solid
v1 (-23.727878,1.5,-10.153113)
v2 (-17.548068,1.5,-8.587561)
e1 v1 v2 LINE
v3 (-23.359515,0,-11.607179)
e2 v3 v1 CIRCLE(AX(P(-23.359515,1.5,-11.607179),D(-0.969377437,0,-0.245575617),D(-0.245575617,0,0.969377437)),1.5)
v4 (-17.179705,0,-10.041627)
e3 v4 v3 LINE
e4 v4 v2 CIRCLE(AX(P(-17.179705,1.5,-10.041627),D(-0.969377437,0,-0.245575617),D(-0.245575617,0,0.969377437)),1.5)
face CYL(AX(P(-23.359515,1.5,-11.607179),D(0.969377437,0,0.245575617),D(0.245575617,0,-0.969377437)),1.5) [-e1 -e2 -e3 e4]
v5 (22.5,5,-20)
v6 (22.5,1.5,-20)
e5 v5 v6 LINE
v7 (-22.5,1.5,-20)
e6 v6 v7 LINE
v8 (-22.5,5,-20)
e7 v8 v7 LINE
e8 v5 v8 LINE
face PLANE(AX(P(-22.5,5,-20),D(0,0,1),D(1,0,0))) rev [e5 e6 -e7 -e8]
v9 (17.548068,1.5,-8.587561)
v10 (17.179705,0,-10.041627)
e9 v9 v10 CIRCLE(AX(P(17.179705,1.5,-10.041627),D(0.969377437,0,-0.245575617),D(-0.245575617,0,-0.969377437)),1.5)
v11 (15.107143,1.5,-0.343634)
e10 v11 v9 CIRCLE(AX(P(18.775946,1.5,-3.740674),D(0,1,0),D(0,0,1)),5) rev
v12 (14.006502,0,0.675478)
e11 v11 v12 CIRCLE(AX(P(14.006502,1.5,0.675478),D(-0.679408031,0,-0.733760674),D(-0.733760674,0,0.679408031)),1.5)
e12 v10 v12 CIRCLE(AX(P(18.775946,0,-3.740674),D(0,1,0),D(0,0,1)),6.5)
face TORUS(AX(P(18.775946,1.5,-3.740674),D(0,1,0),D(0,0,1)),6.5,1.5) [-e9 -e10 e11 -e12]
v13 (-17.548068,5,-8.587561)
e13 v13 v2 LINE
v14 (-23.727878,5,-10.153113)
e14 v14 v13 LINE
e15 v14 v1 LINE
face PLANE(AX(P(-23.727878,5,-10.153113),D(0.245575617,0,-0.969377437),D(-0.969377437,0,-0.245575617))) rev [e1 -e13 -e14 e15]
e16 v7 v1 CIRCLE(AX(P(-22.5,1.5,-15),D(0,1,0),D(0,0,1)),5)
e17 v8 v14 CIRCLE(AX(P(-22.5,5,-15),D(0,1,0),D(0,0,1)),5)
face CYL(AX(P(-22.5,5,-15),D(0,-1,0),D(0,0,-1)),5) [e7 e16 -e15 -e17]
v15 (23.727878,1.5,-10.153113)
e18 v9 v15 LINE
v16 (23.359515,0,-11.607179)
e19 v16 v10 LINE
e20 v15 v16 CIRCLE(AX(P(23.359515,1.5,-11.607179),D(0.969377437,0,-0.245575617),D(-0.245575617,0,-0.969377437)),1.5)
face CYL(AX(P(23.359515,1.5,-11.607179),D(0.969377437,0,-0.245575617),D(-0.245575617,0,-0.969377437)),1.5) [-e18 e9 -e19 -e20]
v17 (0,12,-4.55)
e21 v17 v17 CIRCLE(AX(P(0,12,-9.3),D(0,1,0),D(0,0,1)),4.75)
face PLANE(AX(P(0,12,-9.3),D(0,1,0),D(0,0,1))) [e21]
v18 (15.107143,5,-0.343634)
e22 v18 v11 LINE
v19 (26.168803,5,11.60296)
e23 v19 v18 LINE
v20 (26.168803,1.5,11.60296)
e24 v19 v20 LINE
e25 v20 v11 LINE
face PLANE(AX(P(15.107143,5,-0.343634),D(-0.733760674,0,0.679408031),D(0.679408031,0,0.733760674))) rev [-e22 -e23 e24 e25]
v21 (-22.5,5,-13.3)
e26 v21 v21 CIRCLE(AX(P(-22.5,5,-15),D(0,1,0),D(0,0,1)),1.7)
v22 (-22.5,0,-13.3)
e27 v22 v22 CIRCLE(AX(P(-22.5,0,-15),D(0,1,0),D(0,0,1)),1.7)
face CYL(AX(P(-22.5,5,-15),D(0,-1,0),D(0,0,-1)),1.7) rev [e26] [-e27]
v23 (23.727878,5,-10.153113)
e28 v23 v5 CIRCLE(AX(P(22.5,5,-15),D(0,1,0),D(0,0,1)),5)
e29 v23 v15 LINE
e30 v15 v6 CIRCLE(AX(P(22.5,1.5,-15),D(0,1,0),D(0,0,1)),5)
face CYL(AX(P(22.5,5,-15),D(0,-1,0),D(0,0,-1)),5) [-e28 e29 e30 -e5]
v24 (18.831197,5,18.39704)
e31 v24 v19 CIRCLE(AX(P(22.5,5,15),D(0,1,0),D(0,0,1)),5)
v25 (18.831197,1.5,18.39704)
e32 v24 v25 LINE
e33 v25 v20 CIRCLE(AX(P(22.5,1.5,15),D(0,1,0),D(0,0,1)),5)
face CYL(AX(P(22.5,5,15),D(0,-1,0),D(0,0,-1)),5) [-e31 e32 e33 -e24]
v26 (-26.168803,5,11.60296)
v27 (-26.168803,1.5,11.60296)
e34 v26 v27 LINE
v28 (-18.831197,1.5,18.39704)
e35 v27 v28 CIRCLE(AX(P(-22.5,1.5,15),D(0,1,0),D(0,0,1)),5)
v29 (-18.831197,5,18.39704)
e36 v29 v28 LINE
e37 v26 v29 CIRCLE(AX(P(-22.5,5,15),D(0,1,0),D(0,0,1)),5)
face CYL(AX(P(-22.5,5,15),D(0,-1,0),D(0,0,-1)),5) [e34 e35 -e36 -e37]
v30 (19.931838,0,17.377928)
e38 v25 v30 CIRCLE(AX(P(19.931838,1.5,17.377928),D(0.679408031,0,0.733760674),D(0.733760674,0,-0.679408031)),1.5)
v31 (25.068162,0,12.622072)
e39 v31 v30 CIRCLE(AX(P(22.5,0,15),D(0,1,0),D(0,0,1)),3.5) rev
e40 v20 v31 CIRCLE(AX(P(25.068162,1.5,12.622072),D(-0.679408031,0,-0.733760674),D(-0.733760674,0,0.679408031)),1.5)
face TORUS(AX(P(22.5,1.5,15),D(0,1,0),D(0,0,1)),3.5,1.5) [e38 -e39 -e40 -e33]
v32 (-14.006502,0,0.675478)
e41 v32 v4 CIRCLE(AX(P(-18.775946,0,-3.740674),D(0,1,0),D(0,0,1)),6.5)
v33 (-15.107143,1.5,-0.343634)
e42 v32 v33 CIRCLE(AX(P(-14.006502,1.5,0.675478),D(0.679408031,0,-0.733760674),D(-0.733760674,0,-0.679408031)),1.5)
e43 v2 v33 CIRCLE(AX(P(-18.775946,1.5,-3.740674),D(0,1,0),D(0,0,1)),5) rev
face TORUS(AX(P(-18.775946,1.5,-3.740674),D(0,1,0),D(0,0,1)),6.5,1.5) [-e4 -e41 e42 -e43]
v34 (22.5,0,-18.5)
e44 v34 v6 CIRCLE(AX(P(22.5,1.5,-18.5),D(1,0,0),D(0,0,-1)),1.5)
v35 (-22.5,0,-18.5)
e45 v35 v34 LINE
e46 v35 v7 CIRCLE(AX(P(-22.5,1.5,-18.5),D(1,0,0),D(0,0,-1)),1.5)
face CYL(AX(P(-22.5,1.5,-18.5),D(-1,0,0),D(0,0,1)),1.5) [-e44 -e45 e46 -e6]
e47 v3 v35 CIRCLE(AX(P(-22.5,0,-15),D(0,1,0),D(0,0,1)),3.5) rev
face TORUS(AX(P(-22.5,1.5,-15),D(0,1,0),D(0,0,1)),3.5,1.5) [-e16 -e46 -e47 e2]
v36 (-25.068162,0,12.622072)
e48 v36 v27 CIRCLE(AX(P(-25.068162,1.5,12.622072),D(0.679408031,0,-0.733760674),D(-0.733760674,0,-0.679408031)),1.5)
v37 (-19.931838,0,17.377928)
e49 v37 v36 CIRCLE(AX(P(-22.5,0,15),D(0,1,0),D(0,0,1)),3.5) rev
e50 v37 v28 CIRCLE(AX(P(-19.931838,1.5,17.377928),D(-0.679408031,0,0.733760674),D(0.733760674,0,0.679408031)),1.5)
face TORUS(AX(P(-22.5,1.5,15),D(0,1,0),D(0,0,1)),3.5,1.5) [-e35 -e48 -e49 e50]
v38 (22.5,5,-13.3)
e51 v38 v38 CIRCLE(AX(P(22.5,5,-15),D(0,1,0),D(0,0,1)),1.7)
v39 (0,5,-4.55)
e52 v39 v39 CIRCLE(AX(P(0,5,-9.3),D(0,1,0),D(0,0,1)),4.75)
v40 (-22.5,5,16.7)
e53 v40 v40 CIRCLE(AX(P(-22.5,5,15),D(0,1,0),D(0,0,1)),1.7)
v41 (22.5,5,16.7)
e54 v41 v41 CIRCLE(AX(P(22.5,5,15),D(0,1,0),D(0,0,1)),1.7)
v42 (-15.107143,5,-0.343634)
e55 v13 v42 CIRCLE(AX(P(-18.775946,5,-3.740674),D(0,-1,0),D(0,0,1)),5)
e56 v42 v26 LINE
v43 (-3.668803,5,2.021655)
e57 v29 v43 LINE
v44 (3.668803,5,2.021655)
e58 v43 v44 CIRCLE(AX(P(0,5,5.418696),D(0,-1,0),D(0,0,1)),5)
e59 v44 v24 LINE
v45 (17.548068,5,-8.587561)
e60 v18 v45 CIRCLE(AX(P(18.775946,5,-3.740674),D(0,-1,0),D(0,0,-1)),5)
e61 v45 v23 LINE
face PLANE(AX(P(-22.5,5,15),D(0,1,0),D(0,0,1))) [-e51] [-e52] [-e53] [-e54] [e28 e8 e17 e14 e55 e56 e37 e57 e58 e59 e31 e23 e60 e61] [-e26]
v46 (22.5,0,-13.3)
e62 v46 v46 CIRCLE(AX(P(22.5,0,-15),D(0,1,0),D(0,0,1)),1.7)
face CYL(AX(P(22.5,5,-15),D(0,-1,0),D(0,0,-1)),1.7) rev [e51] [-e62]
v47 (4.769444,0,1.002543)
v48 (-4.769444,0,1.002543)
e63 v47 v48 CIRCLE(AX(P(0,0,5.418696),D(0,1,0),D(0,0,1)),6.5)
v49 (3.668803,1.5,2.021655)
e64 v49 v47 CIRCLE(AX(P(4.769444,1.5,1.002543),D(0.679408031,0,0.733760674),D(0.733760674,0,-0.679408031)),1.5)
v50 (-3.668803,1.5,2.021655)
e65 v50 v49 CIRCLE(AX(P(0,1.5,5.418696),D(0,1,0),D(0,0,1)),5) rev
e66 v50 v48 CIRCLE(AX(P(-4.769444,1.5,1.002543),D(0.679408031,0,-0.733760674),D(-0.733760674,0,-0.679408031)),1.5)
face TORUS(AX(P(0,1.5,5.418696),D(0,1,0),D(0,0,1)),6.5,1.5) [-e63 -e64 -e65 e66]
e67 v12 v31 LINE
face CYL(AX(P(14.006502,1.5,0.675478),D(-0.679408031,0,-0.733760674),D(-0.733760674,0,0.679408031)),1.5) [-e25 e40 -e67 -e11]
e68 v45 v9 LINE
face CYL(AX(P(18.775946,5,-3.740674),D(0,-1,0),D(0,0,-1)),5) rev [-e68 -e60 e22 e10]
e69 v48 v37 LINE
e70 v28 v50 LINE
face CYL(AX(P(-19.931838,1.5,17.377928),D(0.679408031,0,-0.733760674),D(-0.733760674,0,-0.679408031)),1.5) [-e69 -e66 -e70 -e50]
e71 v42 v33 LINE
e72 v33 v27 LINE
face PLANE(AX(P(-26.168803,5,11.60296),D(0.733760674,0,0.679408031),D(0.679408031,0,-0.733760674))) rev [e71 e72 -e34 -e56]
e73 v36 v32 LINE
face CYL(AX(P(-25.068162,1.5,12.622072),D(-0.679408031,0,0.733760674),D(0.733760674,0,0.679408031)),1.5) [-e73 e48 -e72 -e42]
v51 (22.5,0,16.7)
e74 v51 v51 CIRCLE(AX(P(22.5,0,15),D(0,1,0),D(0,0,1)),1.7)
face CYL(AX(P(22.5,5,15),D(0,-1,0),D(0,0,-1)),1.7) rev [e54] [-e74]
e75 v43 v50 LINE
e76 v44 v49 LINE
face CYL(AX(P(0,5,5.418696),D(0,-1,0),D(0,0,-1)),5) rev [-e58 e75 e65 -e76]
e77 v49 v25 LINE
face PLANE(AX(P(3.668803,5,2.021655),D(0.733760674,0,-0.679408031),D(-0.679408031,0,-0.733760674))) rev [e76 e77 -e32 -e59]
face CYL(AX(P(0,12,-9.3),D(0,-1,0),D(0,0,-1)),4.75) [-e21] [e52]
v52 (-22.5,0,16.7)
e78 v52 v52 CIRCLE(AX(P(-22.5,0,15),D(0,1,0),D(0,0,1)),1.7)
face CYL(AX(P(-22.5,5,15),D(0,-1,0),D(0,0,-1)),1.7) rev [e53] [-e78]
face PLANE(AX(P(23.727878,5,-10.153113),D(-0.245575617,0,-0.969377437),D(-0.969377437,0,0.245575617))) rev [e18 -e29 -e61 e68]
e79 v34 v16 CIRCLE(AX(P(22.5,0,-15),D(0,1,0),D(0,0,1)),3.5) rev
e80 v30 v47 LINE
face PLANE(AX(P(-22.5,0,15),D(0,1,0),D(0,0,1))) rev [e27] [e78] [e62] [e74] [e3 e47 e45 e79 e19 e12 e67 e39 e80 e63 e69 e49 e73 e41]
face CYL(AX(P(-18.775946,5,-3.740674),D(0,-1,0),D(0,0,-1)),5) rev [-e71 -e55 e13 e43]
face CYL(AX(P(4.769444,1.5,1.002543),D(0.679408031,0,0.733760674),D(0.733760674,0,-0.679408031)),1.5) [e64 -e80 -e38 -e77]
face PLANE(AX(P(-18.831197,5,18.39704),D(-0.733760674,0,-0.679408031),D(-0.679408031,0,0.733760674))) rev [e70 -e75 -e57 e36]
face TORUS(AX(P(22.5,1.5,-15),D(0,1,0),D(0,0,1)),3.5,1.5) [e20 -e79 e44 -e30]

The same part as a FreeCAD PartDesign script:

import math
import FreeCAD as App
import Part
import Sketcher
from FreeCAD import Vector


def edges_at(feature, points):
    """Names of the edges that pass closest to the given points."""
    edges = feature.Shape.Edges
    near = lambda p: min(range(len(edges)), key=lambda i: edges[i].distToShape(Part.Vertex(*p))[0])
    return sorted({f"Edge{near(p) + 1}" for p in points})

doc = App.newDocument("Part")
params = doc.addObject("Spreadsheet::Sheet", "Params")
for row, (alias, value) in enumerate([
    ("sketch1_radius", "5 mm"),
    ("sketch1_diameter", "3.4 mm"),
    ("sketch1_width", "45 mm"),
    ("pad1_length", "5 mm"),
    ("sketch2_diameter", "9.5 mm"),
    ("pad2_length", "7 mm"),
    ("fillet_radius", "1.5 mm"),
], start=1):
    params.set(f"A{row}", alias)
    params.set(f"B{row}", "=" + value)
    params.setAlias(f"B{row}", alias)

body = doc.addObject("PartDesign::Body", "Body")

# Sketch on XZ plane
sketch1 = body.newObject("Sketcher::SketchObject", "Sketch")
sketch1.AttachmentSupport = (doc.getObject("XZ_Plane"), [""])
sketch1.MapMode = "FlatFace"
sketch1.addGeometry([
    Part.LineSegment(Vector(-15.1, -0.3, 0), Vector(-26.2, 11.6, 0)),  # 0
    Part.ArcOfCircle(Part.Circle(Vector(-22.5, 15, 0), Vector(0, 0, 1), 5), math.radians(43), math.radians(223)),  # 1
    Part.LineSegment(Vector(-18.8, 18.4, 0), Vector(-3.7, 2, 0)),  # 2
    Part.ArcOfCircle(Part.Circle(Vector(0, 5.4, 0), Vector(0, 0, 1), 5), math.radians(-137), math.radians(-43)),  # 3
    Part.LineSegment(Vector(3.7, 2, 0), Vector(18.8, 18.4, 0)),  # 4
    Part.ArcOfCircle(Part.Circle(Vector(22.5, 15, 0), Vector(0, 0, 1), 5), math.radians(-43), math.radians(137)),  # 5
    Part.LineSegment(Vector(26.2, 11.6, 0), Vector(15.1, -0.3, 0)),  # 6
    Part.ArcOfCircle(Part.Circle(Vector(18.8, -3.7, 0), Vector(0, 0, 1), 5), math.radians(137), math.radians(256)),  # 7
    Part.LineSegment(Vector(17.5, -8.6, 0), Vector(23.7, -10.2, 0)),  # 8
    Part.ArcOfCircle(Part.Circle(Vector(22.5, -15, 0), Vector(0, 0, 1), 5), math.radians(-90), math.radians(76)),  # 9
    Part.LineSegment(Vector(22.5, -20, 0), Vector(-22.5, -20, 0)),  # 10
    Part.ArcOfCircle(Part.Circle(Vector(-22.5, -15, 0), Vector(0, 0, 1), 5), math.radians(104), math.radians(270)),  # 11
    Part.LineSegment(Vector(-23.7, -10.2, 0), Vector(-17.5, -8.6, 0)),  # 12
    Part.ArcOfCircle(Part.Circle(Vector(-18.8, -3.7, 0), Vector(0, 0, 1), 5), math.radians(-76), math.radians(43)),  # 13
    Part.Circle(Vector(22.5, 15, 0), Vector(0, 0, 1), 1.7),  # 14
    Part.Circle(Vector(-22.5, 15, 0), Vector(0, 0, 1), 1.7),  # 15
    Part.Circle(Vector(22.5, -15, 0), Vector(0, 0, 1), 1.7),  # 16
    Part.Circle(Vector(-22.5, -15, 0), Vector(0, 0, 1), 1.7),  # 17
], False)
sketch1.addConstraint([
    Sketcher.Constraint("Tangent", 0, 2, 1, 2),
    Sketcher.Constraint("Tangent", 1, 1, 2, 1),
    Sketcher.Constraint("Tangent", 2, 2, 3, 1),
    Sketcher.Constraint("Tangent", 3, 2, 4, 1),
    Sketcher.Constraint("Tangent", 4, 2, 5, 2),
    Sketcher.Constraint("Tangent", 5, 1, 6, 1),
    Sketcher.Constraint("Tangent", 6, 2, 7, 1),
    Sketcher.Constraint("Tangent", 7, 2, 8, 1),
    Sketcher.Constraint("Tangent", 8, 2, 9, 2),
    Sketcher.Constraint("Tangent", 9, 1, 10, 1),
    Sketcher.Constraint("Tangent", 10, 2, 11, 2),
    Sketcher.Constraint("Tangent", 11, 1, 12, 1),
    Sketcher.Constraint("Tangent", 12, 2, 13, 1),
    Sketcher.Constraint("Tangent", 13, 2, 0, 1),
    Sketcher.Constraint("Horizontal", 10),
    Sketcher.Constraint("Coincident", 14, 3, 5, 3),
    Sketcher.Constraint("Coincident", 15, 3, 1, 3),
    Sketcher.Constraint("Coincident", 16, 3, 9, 3),
    Sketcher.Constraint("Coincident", 17, 3, 11, 3),
    Sketcher.Constraint("Equal", 1, 3),
    Sketcher.Constraint("Equal", 3, 5),
    Sketcher.Constraint("Equal", 5, 7),
    Sketcher.Constraint("Equal", 7, 9),
    Sketcher.Constraint("Equal", 9, 11),
    Sketcher.Constraint("Equal", 11, 13),
    Sketcher.Constraint("Equal", 14, 15),
    Sketcher.Constraint("Equal", 15, 16),
    Sketcher.Constraint("Equal", 16, 17),
    Sketcher.Constraint("Symmetric", 1, 3, 9, 3, -1, 1),
    Sketcher.Constraint("Symmetric", 5, 3, 11, 3, -1, 1),
    Sketcher.Constraint("Symmetric", 7, 3, 13, 3, -2),
    Sketcher.Constraint("Symmetric", 2, 2, 3, 2, -2),
    Sketcher.Constraint("Parallel", 0, 2),
    Sketcher.Constraint("Radius", 1, 5.0),
    Sketcher.Constraint("Diameter", 14, 3.4),
    Sketcher.Constraint("DistanceX", 10, 2, 10, 1, 45.0),
    Sketcher.Constraint("DistanceY", -1, 1, 1, 3, 15.0),
    Sketcher.Constraint("Distance", 0, 16.281322),
    Sketcher.Constraint("Distance", 8, 6.37503),
])
sketch1.setExpression("Constraints[33]", "Params.sketch1_radius")
sketch1.setExpression("Constraints[34]", "Params.sketch1_diameter")
sketch1.setExpression("Constraints[35]", "Params.sketch1_width")
pad1 = body.newObject("PartDesign::Pad", "Pad")
pad1.Profile = sketch1
pad1.setExpression("Length", "Params.pad1_length")
pad1.Reversed = True

# Sketch on XZ plane
sketch2 = body.newObject("Sketcher::SketchObject", "Sketch001")
sketch2.AttachmentSupport = (doc.getObject("XZ_Plane"), [""])
sketch2.MapMode = "FlatFace"
sketch2.AttachmentOffset = App.Placement(Vector(0, 0, -5), App.Rotation())
sketch2.addGeometry(Part.Circle(Vector(0, -9.3, 0), Vector(0, 0, 1), 4.8), False)
sketch2.addConstraint([
    Sketcher.Constraint("PointOnObject", 0, 3, -2),
    Sketcher.Constraint("Diameter", 0, 9.5),
    Sketcher.Constraint("DistanceY", 0, 3, -1, 1, 9.3),
])
sketch2.setExpression("Constraints[1]", "Params.sketch2_diameter")
pad2 = body.newObject("PartDesign::Pad", "Pad001")
pad2.Profile = sketch2
pad2.setExpression("Length", "Params.pad2_length")
pad2.Reversed = True
doc.recompute()

fillet = body.newObject("PartDesign::Fillet", "Fillet")
fillet.Base = (pad2, edges_at(pad2, [
    (-20.638, 0, 5.63),
    (-13.982, 0, -5.16),
    (-20.638, 0, -9.37),
    (-27.462, 0, -15.619),
    (0, 0, -20),
    (27.462, 0, -15.619),
    (20.638, 0, -9.37),
    (13.982, 0, -5.16),
    (20.638, 0, 5.63),
    (25.897, 0, 18.669),
    (11.25, 0, 10.209),
    (0, 0, 0.419),
    (-11.25, 0, 10.209),
    (-25.897, 0, 18.669),
]))
fillet.setExpression("Radius", "Params.fillet_radius")

doc.recompute()
